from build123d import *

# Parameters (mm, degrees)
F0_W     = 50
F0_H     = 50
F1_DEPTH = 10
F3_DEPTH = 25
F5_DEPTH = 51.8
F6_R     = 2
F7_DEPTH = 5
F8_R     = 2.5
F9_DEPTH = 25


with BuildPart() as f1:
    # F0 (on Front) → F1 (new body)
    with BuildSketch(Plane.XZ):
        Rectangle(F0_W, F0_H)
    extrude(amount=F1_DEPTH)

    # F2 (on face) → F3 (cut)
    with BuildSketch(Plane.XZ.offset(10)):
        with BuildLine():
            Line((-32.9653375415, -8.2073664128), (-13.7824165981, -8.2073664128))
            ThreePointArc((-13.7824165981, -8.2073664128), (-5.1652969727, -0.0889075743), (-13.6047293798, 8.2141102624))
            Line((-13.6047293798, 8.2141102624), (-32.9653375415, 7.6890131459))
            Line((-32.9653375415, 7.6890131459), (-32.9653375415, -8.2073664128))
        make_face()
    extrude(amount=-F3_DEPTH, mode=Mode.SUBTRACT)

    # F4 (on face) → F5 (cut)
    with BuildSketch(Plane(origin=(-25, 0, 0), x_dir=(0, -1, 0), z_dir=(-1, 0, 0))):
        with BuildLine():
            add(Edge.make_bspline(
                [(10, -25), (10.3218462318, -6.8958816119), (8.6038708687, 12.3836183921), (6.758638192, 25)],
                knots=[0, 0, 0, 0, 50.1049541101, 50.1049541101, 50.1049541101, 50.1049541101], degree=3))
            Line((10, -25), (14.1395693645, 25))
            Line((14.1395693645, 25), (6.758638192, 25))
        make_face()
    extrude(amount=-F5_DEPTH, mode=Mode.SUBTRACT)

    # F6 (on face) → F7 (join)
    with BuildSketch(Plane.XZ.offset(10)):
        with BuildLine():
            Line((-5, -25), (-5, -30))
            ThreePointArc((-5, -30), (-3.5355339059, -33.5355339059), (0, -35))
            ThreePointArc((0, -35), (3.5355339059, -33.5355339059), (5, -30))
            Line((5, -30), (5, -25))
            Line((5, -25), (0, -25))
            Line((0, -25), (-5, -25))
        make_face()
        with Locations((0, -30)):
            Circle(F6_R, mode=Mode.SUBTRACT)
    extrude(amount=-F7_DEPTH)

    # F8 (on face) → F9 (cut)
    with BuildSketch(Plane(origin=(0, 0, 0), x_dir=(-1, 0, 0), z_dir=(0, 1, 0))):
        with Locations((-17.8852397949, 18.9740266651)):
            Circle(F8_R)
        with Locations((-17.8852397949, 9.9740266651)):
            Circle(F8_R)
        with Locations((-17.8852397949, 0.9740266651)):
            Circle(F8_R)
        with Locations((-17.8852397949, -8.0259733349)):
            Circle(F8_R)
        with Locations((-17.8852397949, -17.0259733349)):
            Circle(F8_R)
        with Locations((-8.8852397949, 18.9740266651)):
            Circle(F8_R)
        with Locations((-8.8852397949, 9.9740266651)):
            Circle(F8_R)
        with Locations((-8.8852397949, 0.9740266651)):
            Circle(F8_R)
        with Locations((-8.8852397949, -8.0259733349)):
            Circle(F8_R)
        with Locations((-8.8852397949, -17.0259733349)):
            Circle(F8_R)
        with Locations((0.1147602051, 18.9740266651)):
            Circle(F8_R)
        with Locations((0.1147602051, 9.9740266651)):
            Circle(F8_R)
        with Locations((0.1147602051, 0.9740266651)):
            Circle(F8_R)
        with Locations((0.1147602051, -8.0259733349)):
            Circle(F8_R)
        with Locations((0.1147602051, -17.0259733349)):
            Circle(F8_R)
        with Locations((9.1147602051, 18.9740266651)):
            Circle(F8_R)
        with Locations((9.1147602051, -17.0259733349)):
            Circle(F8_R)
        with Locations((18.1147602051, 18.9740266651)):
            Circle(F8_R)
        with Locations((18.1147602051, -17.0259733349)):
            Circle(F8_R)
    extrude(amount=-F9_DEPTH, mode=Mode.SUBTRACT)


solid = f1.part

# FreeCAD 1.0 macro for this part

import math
import FreeCAD as App
import Part
import Sketcher
from FreeCAD import Vector
Q = App.Units.Quantity

doc = App.newDocument("Part")
body = doc.addObject("PartDesign::Body", "Body")

# Sketch on XZ plane
sketch1 = doc.addObject("Sketcher::SketchObject", "Sketch")
body.addObject(sketch1)
sketch1.AttachmentSupport = (doc.XZ_Plane, [""])
sketch1.MapMode = "FlatFace"
sketch1.addGeometry(Part.LineSegment(Vector(-25, 25, 0), Vector(-25, -25, 0)), False)
sketch1.addGeometry(Part.LineSegment(Vector(-25, -25, 0), Vector(25, -25, 0)), False)
sketch1.addGeometry(Part.LineSegment(Vector(25, -25, 0), Vector(25, 25, 0)), False)
sketch1.addGeometry(Part.LineSegment(Vector(25, 25, 0), Vector(-25, 25, 0)), False)
sketch1.addConstraint(Sketcher.Constraint("Coincident", 0, 2, 1, 1))
sketch1.addConstraint(Sketcher.Constraint("Coincident", 1, 2, 2, 1))
sketch1.addConstraint(Sketcher.Constraint("Coincident", 2, 2, 3, 1))
sketch1.addConstraint(Sketcher.Constraint("Coincident", 3, 2, 0, 1))
sketch1.addConstraint(Sketcher.Constraint("Vertical", 0))
sketch1.addConstraint(Sketcher.Constraint("Horizontal", 1))
sketch1.addConstraint(Sketcher.Constraint("Vertical", 2))
sketch1.addConstraint(Sketcher.Constraint("Horizontal", 3))
sketch1.addConstraint(Sketcher.Constraint("Symmetric", 0, 2, 2, 2, -1, 1))
sketch1.addConstraint(Sketcher.Constraint("Equal", 3, 0))
sketch1.addConstraint(Sketcher.Constraint("DistanceX", 1, 1, 1, 2, Q("50 mm")))
pad1 = doc.addObject("PartDesign::Pad", "Pad")
body.addObject(pad1)
pad1.Profile = sketch1
pad1.Length = 10

# Sketch on XZ plane
sketch2 = doc.addObject("Sketcher::SketchObject", "Sketch001")
body.addObject(sketch2)
sketch2.AttachmentSupport = (doc.XZ_Plane, [""])
sketch2.MapMode = "FlatFace"
sketch2.AttachmentOffset = App.Placement(Vector(0, 0, 10), App.Rotation())
sketch2.addGeometry(Part.LineSegment(Vector(-33, -8, 0), Vector(-14, -8, 0)), False)
sketch2.addGeometry(Part.ArcOfCircle(Part.Circle(Vector(-13, 0, 0), Vector(0, 0, 1), 8), math.radians(-93), math.radians(92)), False)
sketch2.addGeometry(Part.LineSegment(Vector(-14, 8, 0), Vector(-33, 8, 0)), False)
sketch2.addGeometry(Part.LineSegment(Vector(-33, 8, 0), Vector(-33, -8, 0)), False)
sketch2.addConstraint(Sketcher.Constraint("Coincident", 0, 2, 1, 1))
sketch2.addConstraint(Sketcher.Constraint("Tangent", 1, 2, 2, 1))
sketch2.addConstraint(Sketcher.Constraint("Coincident", 2, 2, 3, 1))
sketch2.addConstraint(Sketcher.Constraint("Coincident", 3, 2, 0, 1))
sketch2.addConstraint(Sketcher.Constraint("Horizontal", 0))
sketch2.addConstraint(Sketcher.Constraint("Vertical", 3))
sketch2.addConstraint(Sketcher.Constraint("PointOnObject", 1, 3, -1))
sketch2.addConstraint(Sketcher.Constraint("Radius", 1, Q("8.217131 mm")))
sketch2.addConstraint(Sketcher.Constraint("DistanceX", 0, 1, 0, 2, Q("19.182921 mm")))
sketch2.addConstraint(Sketcher.Constraint("DistanceY", 3, 2, 3, 1, Q("15.89638 mm")))
sketch2.addConstraint(Sketcher.Constraint("DistanceX", 1, 2, -1, 1, Q("13.604729 mm")))
sketch2.addConstraint(Sketcher.Constraint("DistanceX", 0, 2, 1, 3, Q("0.40047 mm")))
pocket1 = doc.addObject("PartDesign::Pocket", "Pocket")
body.addObject(pocket1)
pocket1.Profile = sketch2
pocket1.Length = 25

# Sketch on YZ plane
sketch3 = doc.addObject("Sketcher::SketchObject", "Sketch002")
body.addObject(sketch3)
sketch3.AttachmentSupport = (doc.YZ_Plane, [""])
sketch3.MapMode = "FlatFace"
sketch3.AttachmentOffset = App.Placement(Vector(0, 0, -25), App.Rotation())
sketch3.addGeometry(Part.BSplineCurve([Vector(-10, -25, 0), Vector(-10.321846, -6.895882, 0), Vector(-8.603871, 12.383618, 0), Vector(-6.758638, 25, 0)], [4, 4], [0, 50.10495411], False, 3, [1, 1, 1, 1], False), False)
sketch3.addGeometry(Part.LineSegment(Vector(-10, -25, 0), Vector(-14.139569, 25, 0)), False)
sketch3.addGeometry(Part.LineSegment(Vector(-14.139569, 25, 0), Vector(-6.758638, 25, 0)), False)
sketch3.addConstraint(Sketcher.Constraint("Block", 0))
sketch3.addConstraint(Sketcher.Constraint("Coincident", 0, 1, 1, 1))
sketch3.addConstraint(Sketcher.Constraint("Coincident", 1, 2, 2, 1))
sketch3.addConstraint(Sketcher.Constraint("Coincident", 2, 2, 0, 2))
sketch3.addConstraint(Sketcher.Constraint("Horizontal", 2))
sketch3.addConstraint(Sketcher.Constraint("DistanceX", 2, 1, 2, 2, Q("7.380931 mm")))
pocket2 = doc.addObject("PartDesign::Pocket", "Pocket001")
body.addObject(pocket2)
pocket2.Profile = sketch3
pocket2.Length = 51.8
pocket2.Reversed = True

# Sketch on XZ plane
sketch4 = doc.addObject("Sketcher::SketchObject", "Sketch003")
body.addObject(sketch4)
sketch4.AttachmentSupport = (doc.XZ_Plane, [""])
sketch4.MapMode = "FlatFace"
sketch4.AttachmentOffset = App.Placement(Vector(0, 0, 10), App.Rotation())
sketch4.addGeometry(Part.LineSegment(Vector(-5, -25, 0), Vector(-5, -30, 0)), False)
sketch4.addGeometry(Part.ArcOfCircle(Part.Circle(Vector(0, -30, 0), Vector(0, 0, 1), 5), math.radians(180), math.radians(270)), False)
sketch4.addGeometry(Part.ArcOfCircle(Part.Circle(Vector(0, -30, 0), Vector(0, 0, 1), 5), math.radians(-90), math.radians(0)), False)
sketch4.addGeometry(Part.LineSegment(Vector(5, -30, 0), Vector(5, -25, 0)), False)
sketch4.addGeometry(Part.LineSegment(Vector(5, -25, 0), Vector(-5, -25, 0)), False)
sketch4.addGeometry(Part.Circle(Vector(0, -30, 0), Vector(0, 0, 1), 2), False)
sketch4.addConstraint(Sketcher.Constraint("Tangent", 0, 2, 1, 1))
sketch4.addConstraint(Sketcher.Constraint("Tangent", 1, 2, 2, 1))
sketch4.addConstraint(Sketcher.Constraint("Tangent", 2, 2, 3, 1))
sketch4.addConstraint(Sketcher.Constraint("Coincident", 3, 2, 4, 1))
sketch4.addConstraint(Sketcher.Constraint("Coincident", 4, 2, 0, 1))
sketch4.addConstraint(Sketcher.Constraint("Vertical", 0))
sketch4.addConstraint(Sketcher.Constraint("Vertical", 3))
sketch4.addConstraint(Sketcher.Constraint("Horizontal", 4))
sketch4.addConstraint(Sketcher.Constraint("Coincident", 5, 3, 1, 3))
sketch4.addConstraint(Sketcher.Constraint("Equal", 1, 2))
sketch4.addConstraint(Sketcher.Constraint("PointOnObject", 1, 3, -2))
sketch4.addConstraint(Sketcher.Constraint("PointOnObject", 1, 2, -2))
sketch4.addConstraint(Sketcher.Constraint("Diameter", 5, Q("4 mm")))
sketch4.addConstraint(Sketcher.Constraint("Radius", 1, Q("5 mm")))
sketch4.addConstraint(Sketcher.Constraint("DistanceY", 0, 2, 0, 1, Q("5 mm")))
sketch4.addConstraint(Sketcher.Constraint("DistanceY", 1, 3, -1, 1, Q("30 mm")))
pad2 = doc.addObject("PartDesign::Pad", "Pad001")
body.addObject(pad2)
pad2.Profile = sketch4
pad2.Length = 5
pad2.Reversed = True

# Sketch on XZ plane
sketch5 = doc.addObject("Sketcher::SketchObject", "Sketch004")
body.addObject(sketch5)
sketch5.AttachmentSupport = (doc.XZ_Plane, [""])
sketch5.MapMode = "FlatFace"
sketch5.addGeometry(Part.Circle(Vector(17.9, 19, 0), Vector(0, 0, 1), 2.5), False)
sketch5.addGeometry(Part.Circle(Vector(17.9, 10, 0), Vector(0, 0, 1), 2.5), False)
sketch5.addGeometry(Part.Circle(Vector(17.9, 1, 0), Vector(0, 0, 1), 2.5), False)
sketch5.addGeometry(Part.Circle(Vector(17.9, -8, 0), Vector(0, 0, 1), 2.5), False)
sketch5.addGeometry(Part.Circle(Vector(17.9, -17, 0), Vector(0, 0, 1), 2.5), False)
sketch5.addGeometry(Part.Circle(Vector(8.9, 19, 0), Vector(0, 0, 1), 2.5), False)
sketch5.addGeometry(Part.Circle(Vector(8.9, 10, 0), Vector(0, 0, 1), 2.5), False)
sketch5.addGeometry(Part.Circle(Vector(8.9, 1, 0), Vector(0, 0, 1), 2.5), False)
sketch5.addGeometry(Part.Circle(Vector(8.9, -8, 0), Vector(0, 0, 1), 2.5), False)
sketch5.addGeometry(Part.Circle(Vector(8.9, -17, 0), Vector(0, 0, 1), 2.5), False)
sketch5.addGeometry(Part.Circle(Vector(-0.1, 19, 0), Vector(0, 0, 1), 2.5), False)
sketch5.addGeometry(Part.Circle(Vector(-0.1, 10, 0), Vector(0, 0, 1), 2.5), False)
sketch5.addGeometry(Part.Circle(Vector(-0.1, 1, 0), Vector(0, 0, 1), 2.5), False)
sketch5.addGeometry(Part.Circle(Vector(-0.1, -8, 0), Vector(0, 0, 1), 2.5), False)
sketch5.addGeometry(Part.Circle(Vector(-0.1, -17, 0), Vector(0, 0, 1), 2.5), False)
sketch5.addGeometry(Part.Circle(Vector(-9.1, 19, 0), Vector(0, 0, 1), 2.5), False)
sketch5.addGeometry(Part.Circle(Vector(-9.1, -17, 0), Vector(0, 0, 1), 2.5), False)
sketch5.addGeometry(Part.Circle(Vector(-18.1, 19, 0), Vector(0, 0, 1), 2.5), False)
sketch5.addGeometry(Part.Circle(Vector(-18.1, -17, 0), Vector(0, 0, 1), 2.5), False)
sketch5.addConstraint(Sketcher.Constraint("Equal", 0, 1))
sketch5.addConstraint(Sketcher.Constraint("Equal", 1, 2))
sketch5.addConstraint(Sketcher.Constraint("Equal", 2, 3))
sketch5.addConstraint(Sketcher.Constraint("Equal", 3, 4))
sketch5.addConstraint(Sketcher.Constraint("Equal", 4, 5))
sketch5.addConstraint(Sketcher.Constraint("Equal", 5, 6))
sketch5.addConstraint(Sketcher.Constraint("Equal", 6, 7))
sketch5.addConstraint(Sketcher.Constraint("Equal", 7, 8))
sketch5.addConstraint(Sketcher.Constraint("Equal", 8, 9))
sketch5.addConstraint(Sketcher.Constraint("Equal", 9, 10))
sketch5.addConstraint(Sketcher.Constraint("Equal", 10, 11))
sketch5.addConstraint(Sketcher.Constraint("Equal", 11, 12))
sketch5.addConstraint(Sketcher.Constraint("Equal", 12, 13))
sketch5.addConstraint(Sketcher.Constraint("Equal", 13, 14))
sketch5.addConstraint(Sketcher.Constraint("Equal", 14, 15))
sketch5.addConstraint(Sketcher.Constraint("Equal", 15, 16))
sketch5.addConstraint(Sketcher.Constraint("Equal", 16, 17))
sketch5.addConstraint(Sketcher.Constraint("Equal", 17, 18))
sketch5.addConstraint(Sketcher.Constraint("Horizontal", 0, 3, 5, 3))
sketch5.addConstraint(Sketcher.Constraint("Horizontal", 1, 3, 6, 3))
sketch5.addConstraint(Sketcher.Constraint("Horizontal", 2, 3, 7, 3))
sketch5.addConstraint(Sketcher.Constraint("Horizontal", 3, 3, 8, 3))
sketch5.addConstraint(Sketcher.Constraint("Horizontal", 4, 3, 9, 3))
sketch5.addConstraint(Sketcher.Constraint("Horizontal", 5, 3, 10, 3))
sketch5.addConstraint(Sketcher.Constraint("Horizontal", 6, 3, 11, 3))
sketch5.addConstraint(Sketcher.Constraint("Horizontal", 7, 3, 12, 3))
sketch5.addConstraint(Sketcher.Constraint("Horizontal", 8, 3, 13, 3))
sketch5.addConstraint(Sketcher.Constraint("Horizontal", 9, 3, 14, 3))
sketch5.addConstraint(Sketcher.Constraint("Horizontal", 10, 3, 15, 3))
sketch5.addConstraint(Sketcher.Constraint("Horizontal", 14, 3, 16, 3))
sketch5.addConstraint(Sketcher.Constraint("Horizontal", 15, 3, 17, 3))
sketch5.addConstraint(Sketcher.Constraint("Horizontal", 16, 3, 18, 3))
sketch5.addConstraint(Sketcher.Constraint("Vertical", 0, 3, 1, 3))
sketch5.addConstraint(Sketcher.Constraint("Vertical", 1, 3, 2, 3))
sketch5.addConstraint(Sketcher.Constraint("Vertical", 2, 3, 3, 3))
sketch5.addConstraint(Sketcher.Constraint("Vertical", 3, 3, 4, 3))
sketch5.addConstraint(Sketcher.Constraint("Vertical", 5, 3, 6, 3))
sketch5.addConstraint(Sketcher.Constraint("Vertical", 6, 3, 7, 3))
sketch5.addConstraint(Sketcher.Constraint("Vertical", 7, 3, 8, 3))
sketch5.addConstraint(Sketcher.Constraint("Vertical", 8, 3, 9, 3))
sketch5.addConstraint(Sketcher.Constraint("Vertical", 10, 3, 11, 3))
sketch5.addConstraint(Sketcher.Constraint("Vertical", 11, 3, 12, 3))
sketch5.addConstraint(Sketcher.Constraint("Vertical", 12, 3, 13, 3))
sketch5.addConstraint(Sketcher.Constraint("Vertical", 13, 3, 14, 3))
sketch5.addConstraint(Sketcher.Constraint("Vertical", 15, 3, 16, 3))
sketch5.addConstraint(Sketcher.Constraint("Vertical", 17, 3, 18, 3))
sketch5.addConstraint(Sketcher.Constraint("Diameter", 0, Q("5 mm")))
sketch5.addConstraint(Sketcher.Constraint("DistanceY", 1, 3, 0, 3, Q("9 mm")))
sketch5.addConstraint(Sketcher.Constraint("DistanceY", 2, 3, 1, 3, Q("9 mm")))
sketch5.addConstraint(Sketcher.Constraint("DistanceY", 3, 3, 2, 3, Q("9 mm")))
sketch5.addConstraint(Sketcher.Constraint("DistanceY", 4, 3, 3, 3, Q("9 mm")))
sketch5.addConstraint(Sketcher.Constraint("DistanceX", 5, 3, 0, 3, Q("9 mm")))
sketch5.addConstraint(Sketcher.Constraint("DistanceX", 10, 3, 5, 3, Q("9 mm")))
sketch5.addConstraint(Sketcher.Constraint("DistanceX", 15, 3, 10, 3, Q("9 mm")))
sketch5.addConstraint(Sketcher.Constraint("DistanceX", 17, 3, 15, 3, Q("9 mm")))
sketch5.addConstraint(Sketcher.Constraint("DistanceX", -1, 1, 0, 3, Q("17.88524 mm")))
sketch5.addConstraint(Sketcher.Constraint("DistanceY", -1, 1, 0, 3, Q("18.974027 mm")))
pocket3 = doc.addObject("PartDesign::Pocket", "Pocket002")
body.addObject(pocket3)
pocket3.Profile = sketch5
pocket3.Length = 25
pocket3.Reversed = True

doc.recompute()
